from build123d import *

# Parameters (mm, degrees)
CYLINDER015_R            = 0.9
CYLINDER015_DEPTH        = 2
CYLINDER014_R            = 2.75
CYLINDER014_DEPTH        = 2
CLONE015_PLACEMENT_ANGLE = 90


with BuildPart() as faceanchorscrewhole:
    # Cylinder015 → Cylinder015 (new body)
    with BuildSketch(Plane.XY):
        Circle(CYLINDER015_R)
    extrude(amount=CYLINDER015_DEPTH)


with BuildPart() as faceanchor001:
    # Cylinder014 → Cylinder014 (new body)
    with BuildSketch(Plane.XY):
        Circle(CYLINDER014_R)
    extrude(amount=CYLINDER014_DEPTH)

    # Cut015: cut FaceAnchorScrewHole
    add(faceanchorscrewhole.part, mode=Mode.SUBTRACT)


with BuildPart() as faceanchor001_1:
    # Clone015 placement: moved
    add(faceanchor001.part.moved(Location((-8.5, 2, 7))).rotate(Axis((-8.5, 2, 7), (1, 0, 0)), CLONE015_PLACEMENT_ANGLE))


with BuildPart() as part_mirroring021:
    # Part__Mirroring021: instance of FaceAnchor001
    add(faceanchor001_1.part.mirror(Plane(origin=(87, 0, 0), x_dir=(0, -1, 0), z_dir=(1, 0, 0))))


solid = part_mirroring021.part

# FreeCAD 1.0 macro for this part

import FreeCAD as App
import Part
import Sketcher
from FreeCAD import Vector
Q = App.Units.Quantity

doc = App.newDocument("Part")
body = doc.addObject("PartDesign::Body", "Body")

# Sketch on XY plane
sketch1 = body.newObject("Sketcher::SketchObject", "Sketch")
sketch1.AttachmentSupport = (doc.getObject("XY_Plane"), [""])
sketch1.MapMode = "FlatFace"
sketch1.addGeometry(Part.Circle(Vector(0, 0, 0), Vector(0, 0, 1), 0.9), False)
sketch1.addConstraint([
    Sketcher.Constraint("Coincident", 0, 3, -1, 1),
    Sketcher.Constraint("Diameter", 0, Q("1.8 mm")),
])
pad1 = body.newObject("PartDesign::Pad", "Pad")
pad1.Profile = sketch1
pad1.Length = 2
body2 = doc.addObject("PartDesign::Body", "Body001")

# Sketch on XY plane
sketch2 = body2.newObject("Sketcher::SketchObject", "Sketch001")
sketch2.AttachmentSupport = (doc.getObject("XY_Plane001"), [""])
sketch2.MapMode = "FlatFace"
sketch2.addGeometry(Part.Circle(Vector(0, 0, 0), Vector(0, 0, 1), 2.75), False)
sketch2.addConstraint([
    Sketcher.Constraint("Coincident", 0, 3, -1, 1),
    Sketcher.Constraint("Diameter", 0, Q("5.5 mm")),
])
pad2 = body2.newObject("PartDesign::Pad", "Pad001")
pad2.Profile = sketch2
pad2.Length = 2
doc.recompute()

boolean = body2.newObject("PartDesign::Boolean", "Boolean")
boolean.Type = "Cut"
boolean.addObjects([body])
body3 = doc.addObject("PartDesign::Body", "Body002")
doc.recompute()

body2.Placement = App.Placement(Vector(-8.5, 2, 7), App.Rotation(Vector(1, 0, 0), 90))
boolean2 = body3.newObject("PartDesign::Boolean", "Boolean001")
boolean2.Type = "Fuse"
boolean2.addObjects([body2])
body4 = doc.addObject("PartDesign::Body", "Body003")
doc.recompute()

mirroring = doc.addObject("Part::Mirroring", "Mirroring")
mirroring.Source = body3
mirroring.Base = Vector(87, 0, 0)
mirroring.Normal = Vector(1, 0, 0)
body4.BaseFeature = mirroring
doc.recompute()
body3.Visibility = False
mirroring.Visibility = False

doc.recompute()
